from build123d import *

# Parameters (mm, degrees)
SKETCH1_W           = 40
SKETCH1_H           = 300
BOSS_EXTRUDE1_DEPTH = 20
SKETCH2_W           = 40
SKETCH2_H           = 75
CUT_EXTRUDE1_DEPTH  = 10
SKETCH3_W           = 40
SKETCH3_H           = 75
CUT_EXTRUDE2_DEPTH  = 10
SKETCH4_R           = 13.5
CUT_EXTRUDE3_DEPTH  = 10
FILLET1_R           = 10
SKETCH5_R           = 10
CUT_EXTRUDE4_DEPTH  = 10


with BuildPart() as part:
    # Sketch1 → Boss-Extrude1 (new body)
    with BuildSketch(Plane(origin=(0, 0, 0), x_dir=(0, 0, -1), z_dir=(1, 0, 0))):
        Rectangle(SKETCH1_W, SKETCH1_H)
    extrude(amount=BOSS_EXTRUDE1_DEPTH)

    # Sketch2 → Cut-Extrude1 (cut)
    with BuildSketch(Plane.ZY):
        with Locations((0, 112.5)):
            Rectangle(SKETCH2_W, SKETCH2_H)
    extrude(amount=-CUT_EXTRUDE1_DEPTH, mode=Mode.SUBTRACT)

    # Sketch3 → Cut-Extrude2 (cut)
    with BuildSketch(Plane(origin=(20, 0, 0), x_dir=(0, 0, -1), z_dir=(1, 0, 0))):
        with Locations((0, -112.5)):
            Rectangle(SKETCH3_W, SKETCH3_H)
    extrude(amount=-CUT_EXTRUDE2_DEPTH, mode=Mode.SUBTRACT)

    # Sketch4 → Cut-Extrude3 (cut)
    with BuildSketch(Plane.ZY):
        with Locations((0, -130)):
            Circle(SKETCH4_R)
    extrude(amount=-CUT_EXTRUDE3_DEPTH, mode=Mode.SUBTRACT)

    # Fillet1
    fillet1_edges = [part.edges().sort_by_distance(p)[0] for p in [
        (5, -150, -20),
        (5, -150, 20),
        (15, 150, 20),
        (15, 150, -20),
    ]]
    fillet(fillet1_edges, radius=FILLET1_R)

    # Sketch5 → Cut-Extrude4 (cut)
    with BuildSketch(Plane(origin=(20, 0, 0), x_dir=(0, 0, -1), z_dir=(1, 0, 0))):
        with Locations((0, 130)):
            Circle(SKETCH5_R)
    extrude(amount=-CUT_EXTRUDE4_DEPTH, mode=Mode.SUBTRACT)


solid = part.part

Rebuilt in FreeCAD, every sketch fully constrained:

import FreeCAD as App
import Part
import Sketcher
from FreeCAD import Vector


def edges_at(feature, points):
    """Names of the edges that pass closest to the given points."""
    edges = feature.Shape.Edges
    near = lambda p: min(range(len(edges)), key=lambda i: edges[i].distToShape(Part.Vertex(*p))[0])
    return sorted({f"Edge{near(p) + 1}" for p in points})


def add_polygon(sketch, points):
    """Adds a closed chain of lines whose ends are joined by coincident constraints."""
    first, n = sketch.GeometryCount, len(points)
    for a, b in zip(points, points[1:] + points[:1]):
        sketch.addGeometry(Part.LineSegment(App.Vector(*a, 0), App.Vector(*b, 0)), False)
    for i in range(n):
        sketch.addConstraint(Sketcher.Constraint("Coincident", first + i, 2, first + (i + 1) % n, 1))

doc = App.newDocument("Part")
params = doc.addObject("Spreadsheet::Sheet", "Params")
for row, (alias, value) in enumerate([
    ("sketch1_width", "300 mm"),
    ("sketch1_height", "40 mm"),
    ("pad1_length", "20 mm"),
    ("sketch2_width", "75 mm"),
    ("sketch2_height", "40 mm"),
    ("pocket1_length", "10 mm"),
    ("sketch3_width", "75 mm"),
    ("sketch3_height", "40 mm"),
    ("pocket2_length", "10 mm"),
    ("sketch4_diameter", "27 mm"),
    ("pocket3_length", "10 mm"),
    ("fillet_radius", "10 mm"),
    ("sketch5_diameter", "20 mm"),
    ("pocket4_length", "10 mm"),
], start=1):
    params.set(f"A{row}", alias)
    params.set(f"B{row}", "=" + value)
    params.setAlias(f"B{row}", alias)

body = doc.addObject("PartDesign::Body", "Body")

# Sketch on YZ plane
sketch1 = body.newObject("Sketcher::SketchObject", "Sketch")
sketch1.AttachmentSupport = (doc.getObject("YZ_Plane"), [""])
sketch1.MapMode = "FlatFace"
add_polygon(sketch1, [(150, 20), (-150, 20), (-150, -20), (150, -20)])  # lines 0-3
sketch1.addConstraint([
    Sketcher.Constraint("Horizontal", 0),
    Sketcher.Constraint("Vertical", 1),
    Sketcher.Constraint("Horizontal", 2),
    Sketcher.Constraint("Vertical", 3),
    Sketcher.Constraint("Symmetric", 0, 2, 2, 2, -1, 1),
    Sketcher.Constraint("DistanceX", 0, 2, 0, 1, 300.0),
    Sketcher.Constraint("DistanceY", 1, 2, 1, 1, 40.0),
])
sketch1.setExpression("Constraints[9]", "Params.sketch1_width")
sketch1.setExpression("Constraints[10]", "Params.sketch1_height")
pad1 = body.newObject("PartDesign::Pad", "Pad")
pad1.Profile = sketch1
pad1.setExpression("Length", "Params.pad1_length")

# Sketch on YZ plane
sketch2 = body.newObject("Sketcher::SketchObject", "Sketch001")
sketch2.AttachmentSupport = (doc.getObject("YZ_Plane"), [""])
sketch2.MapMode = "FlatFace"
add_polygon(sketch2, [(150, -20), (75, -20), (75, 20), (150, 20)])  # lines 0-3
sketch2.addConstraint([
    Sketcher.Constraint("Horizontal", 0),
    Sketcher.Constraint("Vertical", 1),
    Sketcher.Constraint("Horizontal", 2),
    Sketcher.Constraint("Vertical", 3),
    Sketcher.Constraint("DistanceX", 0, 2, 0, 1, 75.0),
    Sketcher.Constraint("DistanceY", 1, 1, 1, 2, 40.0),
    Sketcher.Constraint("DistanceX", -1, 1, 0, 2, 75.0),
    Sketcher.Constraint("DistanceY", 0, 2, -1, 1, 20.0),
])
sketch2.setExpression("Constraints[8]", "Params.sketch2_width")
sketch2.setExpression("Constraints[9]", "Params.sketch2_height")
pocket1 = body.newObject("PartDesign::Pocket", "Pocket")
pocket1.Profile = sketch2
pocket1.setExpression("Length", "Params.pocket1_length")
pocket1.Reversed = True

# Sketch on YZ plane
sketch3 = body.newObject("Sketcher::SketchObject", "Sketch002")
sketch3.AttachmentSupport = (doc.getObject("YZ_Plane"), [""])
sketch3.MapMode = "FlatFace"
sketch3.AttachmentOffset = App.Placement(Vector(0, 0, 20), App.Rotation())
add_polygon(sketch3, [(-75, 20), (-150, 20), (-150, -20), (-75, -20)])  # lines 0-3
sketch3.addConstraint([
    Sketcher.Constraint("Horizontal", 0),
    Sketcher.Constraint("Vertical", 1),
    Sketcher.Constraint("Horizontal", 2),
    Sketcher.Constraint("Vertical", 3),
    Sketcher.Constraint("DistanceX", 0, 2, 0, 1, 75.0),
    Sketcher.Constraint("DistanceY", 1, 2, 1, 1, 40.0),
    Sketcher.Constraint("DistanceX", 0, 2, -1, 1, 150.0),
    Sketcher.Constraint("DistanceY", -1, 1, 0, 2, 20.0),
])
sketch3.setExpression("Constraints[8]", "Params.sketch3_width")
sketch3.setExpression("Constraints[9]", "Params.sketch3_height")
pocket2 = body.newObject("PartDesign::Pocket", "Pocket001")
pocket2.Profile = sketch3
pocket2.setExpression("Length", "Params.pocket2_length")

# Sketch on YZ plane
sketch4 = body.newObject("Sketcher::SketchObject", "Sketch003")
sketch4.AttachmentSupport = (doc.getObject("YZ_Plane"), [""])
sketch4.MapMode = "FlatFace"
sketch4.addGeometry(Part.Circle(Vector(-130, 0, 0), Vector(0, 0, 1), 13.5), False)
sketch4.addConstraint([
    Sketcher.Constraint("PointOnObject", 0, 3, -1),
    Sketcher.Constraint("Diameter", 0, 27.0),
    Sketcher.Constraint("DistanceX", 0, 3, -1, 1, 130.0),
])
sketch4.setExpression("Constraints[1]", "Params.sketch4_diameter")
pocket3 = body.newObject("PartDesign::Pocket", "Pocket002")
pocket3.Profile = sketch4
pocket3.setExpression("Length", "Params.pocket3_length")
pocket3.Reversed = True
doc.recompute()

fillet = body.newObject("PartDesign::Fillet", "Fillet")
fillet.Base = (pocket3, edges_at(pocket3, [
    (5, -150, -20),
    (5, -150, 20),
    (15, 150, 20),
    (15, 150, -20),
]))
fillet.setExpression("Radius", "Params.fillet_radius")

# Sketch on YZ plane
sketch5 = body.newObject("Sketcher::SketchObject", "Sketch004")
sketch5.AttachmentSupport = (doc.getObject("YZ_Plane"), [""])
sketch5.MapMode = "FlatFace"
sketch5.AttachmentOffset = App.Placement(Vector(0, 0, 20), App.Rotation())
sketch5.addGeometry(Part.Circle(Vector(130, 0, 0), Vector(0, 0, 1), 10), False)
sketch5.addConstraint([
    Sketcher.Constraint("PointOnObject", 0, 3, -1),
    Sketcher.Constraint("Diameter", 0, 20.0),
    Sketcher.Constraint("DistanceX", -1, 1, 0, 3, 130.0),
])
sketch5.setExpression("Constraints[1]", "Params.sketch5_diameter")
pocket4 = body.newObject("PartDesign::Pocket", "Pocket003")
pocket4.Profile = sketch5
pocket4.setExpression("Length", "Params.pocket4_length")

doc.recompute()
